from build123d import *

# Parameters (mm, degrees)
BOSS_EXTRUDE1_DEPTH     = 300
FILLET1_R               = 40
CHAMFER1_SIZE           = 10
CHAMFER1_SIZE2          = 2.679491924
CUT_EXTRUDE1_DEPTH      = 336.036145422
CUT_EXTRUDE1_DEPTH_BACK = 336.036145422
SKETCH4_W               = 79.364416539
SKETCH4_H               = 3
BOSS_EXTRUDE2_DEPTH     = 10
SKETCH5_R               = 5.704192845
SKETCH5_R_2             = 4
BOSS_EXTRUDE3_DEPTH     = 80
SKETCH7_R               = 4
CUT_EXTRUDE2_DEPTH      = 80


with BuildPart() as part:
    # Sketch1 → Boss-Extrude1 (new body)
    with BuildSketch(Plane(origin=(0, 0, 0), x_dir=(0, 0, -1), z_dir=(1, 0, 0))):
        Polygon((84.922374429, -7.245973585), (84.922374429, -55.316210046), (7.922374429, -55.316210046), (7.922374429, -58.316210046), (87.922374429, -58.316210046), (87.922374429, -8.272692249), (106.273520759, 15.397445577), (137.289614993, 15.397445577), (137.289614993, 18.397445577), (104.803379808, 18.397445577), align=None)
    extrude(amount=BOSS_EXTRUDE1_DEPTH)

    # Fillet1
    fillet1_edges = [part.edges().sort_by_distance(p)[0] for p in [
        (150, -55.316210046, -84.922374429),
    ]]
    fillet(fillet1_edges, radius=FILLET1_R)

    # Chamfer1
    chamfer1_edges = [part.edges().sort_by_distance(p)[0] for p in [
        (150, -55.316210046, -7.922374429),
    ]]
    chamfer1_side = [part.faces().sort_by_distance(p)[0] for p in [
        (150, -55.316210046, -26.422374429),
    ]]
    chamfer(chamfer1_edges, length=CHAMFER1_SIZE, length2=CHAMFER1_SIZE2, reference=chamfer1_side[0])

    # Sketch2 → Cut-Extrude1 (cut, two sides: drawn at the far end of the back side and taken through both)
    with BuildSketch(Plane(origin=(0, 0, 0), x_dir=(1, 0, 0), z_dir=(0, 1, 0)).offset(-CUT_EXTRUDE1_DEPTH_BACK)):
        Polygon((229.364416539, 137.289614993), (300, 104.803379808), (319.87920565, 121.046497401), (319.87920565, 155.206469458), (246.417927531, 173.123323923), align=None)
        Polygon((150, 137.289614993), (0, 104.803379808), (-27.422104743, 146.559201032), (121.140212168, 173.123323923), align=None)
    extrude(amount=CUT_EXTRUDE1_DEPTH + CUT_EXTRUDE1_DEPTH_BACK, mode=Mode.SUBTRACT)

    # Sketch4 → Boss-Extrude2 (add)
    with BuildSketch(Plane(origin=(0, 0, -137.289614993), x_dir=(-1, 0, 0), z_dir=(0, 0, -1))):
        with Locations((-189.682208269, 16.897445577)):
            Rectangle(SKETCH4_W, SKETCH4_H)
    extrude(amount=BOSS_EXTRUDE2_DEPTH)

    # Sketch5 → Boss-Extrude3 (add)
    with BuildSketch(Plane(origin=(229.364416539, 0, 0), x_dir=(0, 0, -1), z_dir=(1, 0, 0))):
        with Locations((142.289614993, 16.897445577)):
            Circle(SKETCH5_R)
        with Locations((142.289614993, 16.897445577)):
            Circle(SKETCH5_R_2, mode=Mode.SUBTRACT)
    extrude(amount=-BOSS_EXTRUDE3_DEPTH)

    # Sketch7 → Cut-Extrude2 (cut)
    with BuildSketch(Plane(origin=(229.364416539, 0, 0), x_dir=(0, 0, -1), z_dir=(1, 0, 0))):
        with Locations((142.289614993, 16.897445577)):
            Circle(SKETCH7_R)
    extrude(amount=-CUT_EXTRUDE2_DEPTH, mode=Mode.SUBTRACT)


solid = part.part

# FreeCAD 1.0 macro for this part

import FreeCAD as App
import Part
import Sketcher
from FreeCAD import Vector


def edges_at(feature, points):
    """Names of the edges that pass closest to the given points."""
    edges = feature.Shape.Edges
    near = lambda p: min(range(len(edges)), key=lambda i: edges[i].distToShape(Part.Vertex(*p))[0])
    return sorted({f"Edge{near(p) + 1}" for p in points})


def add_polygon(sketch, points):
    """Adds a closed chain of lines whose ends are joined by coincident constraints."""
    first, n = sketch.GeometryCount, len(points)
    for a, b in zip(points, points[1:] + points[:1]):
        sketch.addGeometry(Part.LineSegment(App.Vector(*a, 0), App.Vector(*b, 0)), False)
    for i in range(n):
        sketch.addConstraint(Sketcher.Constraint("Coincident", first + i, 2, first + (i + 1) % n, 1))

doc = App.newDocument("Part")
body = doc.addObject("PartDesign::Body", "Body")

# Sketch on YZ plane
sketch1 = body.newObject("Sketcher::SketchObject", "Sketch")
sketch1.AttachmentSupport = (doc.getObject("YZ_Plane"), [""])
sketch1.MapMode = "FlatFace"
add_polygon(sketch1, [(-7.2, -84.9), (-55.3, -84.9), (-55.3, -7.9), (-58.3, -7.9), (-58.3, -87.9), (-8.3, -87.9), (15.4, -106.3), (15.4, -137.3), (18.4, -137.3), (18.4, -104.8)])  # lines 0-9
sketch1.addConstraint(Sketcher.Constraint("Horizontal", 0))
sketch1.addConstraint(Sketcher.Constraint("Vertical", 1))
sketch1.addConstraint(Sketcher.Constraint("Horizontal", 2))
sketch1.addConstraint(Sketcher.Constraint("Vertical", 3))
sketch1.addConstraint(Sketcher.Constraint("Horizontal", 4))
sketch1.addConstraint(Sketcher.Constraint("Vertical", 6))
sketch1.addConstraint(Sketcher.Constraint("Horizontal", 7))
sketch1.addConstraint(Sketcher.Constraint("Vertical", 8))
sketch1.addConstraint(Sketcher.Constraint("Parallel", 5, 9))
sketch1.addConstraint(Sketcher.Constraint("Equal", 2, 7))
sketch1.addConstraint(Sketcher.Constraint("DistanceX", 2, 2, 2, 1, 3.0))
sketch1.addConstraint(Sketcher.Constraint("DistanceY", 1, 1, 1, 2, 77.0))
sketch1.addConstraint(Sketcher.Constraint("DistanceY", 3, 2, 3, 1, 80.0))
sketch1.addConstraint(Sketcher.Constraint("DistanceX", 0, 2, 0, 1, 48.070236))
sketch1.addConstraint(Sketcher.Constraint("DistanceX", 4, 1, 4, 2, 50.043518))
sketch1.addConstraint(Sketcher.Constraint("DistanceY", 6, 2, 6, 1, 31.016094))
sketch1.addConstraint(Sketcher.Constraint("DistanceY", 8, 1, 8, 2, 32.486235))
sketch1.addConstraint(Sketcher.Constraint("DistanceX", 0, 2, -1, 1, 55.31621))
sketch1.addConstraint(Sketcher.Constraint("DistanceY", 5, 2, -1, 1, 106.273521))
sketch1.addConstraint(Sketcher.Constraint("DistanceY", 6, 2, 4, 2, 49.367241))
pad1 = body.newObject("PartDesign::Pad", "Pad")
pad1.Profile = sketch1
pad1.Length = 300
doc.recompute()

fillet = body.newObject("PartDesign::Fillet", "Fillet")
fillet.Base = (pad1, edges_at(pad1, [(150, -55.316, -84.922)]))
fillet.Radius = 40
doc.recompute()

chamfer = body.newObject("PartDesign::Chamfer", "Chamfer")
chamfer.Base = (fillet, edges_at(fillet, [(150, -55.316, -7.922)]))
chamfer.ChamferType = "Two distances"
chamfer.Size = 10
chamfer.Size2 = 2.679492

# Sketch on XZ plane
sketch2 = body.newObject("Sketcher::SketchObject", "Sketch001")
sketch2.AttachmentSupport = (doc.getObject("XZ_Plane"), [""])
sketch2.MapMode = "FlatFace"
add_polygon(sketch2, [(229, -137), (300, -105), (320, -121), (320, -155), (246, -173)])  # lines 0-4
add_polygon(sketch2, [(0, -105), (150, -137), (121, -173), (-27, -147)])  # lines 5-8
sketch2.addConstraint(Sketcher.Constraint("Vertical", 2))
sketch2.addConstraint(Sketcher.Constraint("PointOnObject", 8, 2, -2))
sketch2.addConstraint(Sketcher.Constraint("Horizontal", 4, 2, 5, 2))
sketch2.addConstraint(Sketcher.Constraint("Horizontal", 3, 2, 6, 2))
sketch2.addConstraint(Sketcher.Constraint("Horizontal", 0, 2, 8, 2))
sketch2.addConstraint(Sketcher.Constraint("DistanceX", -1, 1, 0, 2, 300.0))
sketch2.addConstraint(Sketcher.Constraint("DistanceX", -1, 1, 5, 2, 150.0))
sketch2.addConstraint(Sketcher.Constraint("DistanceY", 7, 2, -1, 1, 146.559201))
sketch2.addConstraint(Sketcher.Constraint("Distance", 4, 39.684719))
sketch2.addConstraint(Sketcher.Constraint("Distance", 5, 153.477541))
sketch2.addConstraint(Sketcher.Constraint("Distance", 6, 46.010239))
sketch2.addConstraint(Sketcher.Constraint("Distance", 7, 150.91857))
sketch2.addConstraint(Sketcher.Constraint("DistanceY", 2, 2, 2, 1, 34.159972))
sketch2.addConstraint(Sketcher.Constraint("DistanceY", 0, 2, -1, 1, 104.80338))
sketch2.addConstraint(Sketcher.Constraint("DistanceY", 2, 2, -1, 1, 155.206469))
sketch2.addConstraint(Sketcher.Constraint("DistanceX", 3, 2, 2, 2, 73.461278))
sketch2.addConstraint(Sketcher.Constraint("DistanceX", 4, 2, 3, 2, 17.053511))
sketch2.addConstraint(Sketcher.Constraint("DistanceX", 7, 2, 4, 2, 256.786521))
pocket1 = body.newObject("PartDesign::Pocket", "Pocket")
pocket1.Profile = sketch2
pocket1.Type = "ThroughAll"
pocket1.Midplane = True

# Sketch on XY plane
sketch3 = body.newObject("Sketcher::SketchObject", "Sketch002")
sketch3.AttachmentSupport = (doc.getObject("XY_Plane"), [""])
sketch3.MapMode = "FlatFace"
sketch3.AttachmentOffset = App.Placement(Vector(0, 0, -137.289615), App.Rotation())
add_polygon(sketch3, [(229.4, 18.4), (229.4, 15.4), (150, 15.4), (150, 18.4)])  # lines 0-3
sketch3.addConstraint(Sketcher.Constraint("Vertical", 0))
sketch3.addConstraint(Sketcher.Constraint("Horizontal", 1))
sketch3.addConstraint(Sketcher.Constraint("Vertical", 2))
sketch3.addConstraint(Sketcher.Constraint("Horizontal", 3))
sketch3.addConstraint(Sketcher.Constraint("DistanceY", 0, 2, 0, 1, 3.0))
sketch3.addConstraint(Sketcher.Constraint("DistanceX", -1, 1, 1, 2, 150.0))
sketch3.addConstraint(Sketcher.Constraint("DistanceX", 1, 2, 1, 1, 79.364417))
sketch3.addConstraint(Sketcher.Constraint("DistanceY", -1, 1, 0, 2, 15.397446))
pad2 = body.newObject("PartDesign::Pad", "Pad001")
pad2.Profile = sketch3
pad2.Length = 10
pad2.Reversed = True

# Sketch on YZ plane
sketch4 = body.newObject("Sketcher::SketchObject", "Sketch003")
sketch4.AttachmentSupport = (doc.getObject("YZ_Plane"), [""])
sketch4.MapMode = "FlatFace"
sketch4.AttachmentOffset = App.Placement(Vector(0, 0, 229.364417), App.Rotation())
sketch4.addGeometry(Part.Circle(Vector(16.9, -142.3, 0), Vector(0, 0, 1), 5.7), False)
sketch4.addGeometry(Part.Circle(Vector(16.9, -142.3, 0), Vector(0, 0, 1), 4), False)
sketch4.addConstraint(Sketcher.Constraint("Coincident", 1, 3, 0, 3))
sketch4.addConstraint(Sketcher.Constraint("Diameter", 1, 8.0))
sketch4.addConstraint(Sketcher.Constraint("Diameter", 0, 11.408386))
sketch4.addConstraint(Sketcher.Constraint("DistanceX", -1, 1, 0, 3, 16.897446))
sketch4.addConstraint(Sketcher.Constraint("DistanceY", 0, 3, -1, 1, 142.289615))
pad3 = body.newObject("PartDesign::Pad", "Pad002")
pad3.Profile = sketch4
pad3.Length = 80
pad3.Reversed = True

# Sketch on YZ plane
sketch5 = body.newObject("Sketcher::SketchObject", "Sketch004")
sketch5.AttachmentSupport = (doc.getObject("YZ_Plane"), [""])
sketch5.MapMode = "FlatFace"
sketch5.AttachmentOffset = App.Placement(Vector(0, 0, 229.364417), App.Rotation())
sketch5.addGeometry(Part.Circle(Vector(16.9, -142.3, 0), Vector(0, 0, 1), 4), False)
sketch5.addConstraint(Sketcher.Constraint("Diameter", 0, 8.0))
sketch5.addConstraint(Sketcher.Constraint("DistanceX", -1, 1, 0, 3, 16.897446))
sketch5.addConstraint(Sketcher.Constraint("DistanceY", 0, 3, -1, 1, 142.289615))
pocket2 = body.newObject("PartDesign::Pocket", "Pocket001")
pocket2.Profile = sketch5
pocket2.Length = 80

doc.recompute()
